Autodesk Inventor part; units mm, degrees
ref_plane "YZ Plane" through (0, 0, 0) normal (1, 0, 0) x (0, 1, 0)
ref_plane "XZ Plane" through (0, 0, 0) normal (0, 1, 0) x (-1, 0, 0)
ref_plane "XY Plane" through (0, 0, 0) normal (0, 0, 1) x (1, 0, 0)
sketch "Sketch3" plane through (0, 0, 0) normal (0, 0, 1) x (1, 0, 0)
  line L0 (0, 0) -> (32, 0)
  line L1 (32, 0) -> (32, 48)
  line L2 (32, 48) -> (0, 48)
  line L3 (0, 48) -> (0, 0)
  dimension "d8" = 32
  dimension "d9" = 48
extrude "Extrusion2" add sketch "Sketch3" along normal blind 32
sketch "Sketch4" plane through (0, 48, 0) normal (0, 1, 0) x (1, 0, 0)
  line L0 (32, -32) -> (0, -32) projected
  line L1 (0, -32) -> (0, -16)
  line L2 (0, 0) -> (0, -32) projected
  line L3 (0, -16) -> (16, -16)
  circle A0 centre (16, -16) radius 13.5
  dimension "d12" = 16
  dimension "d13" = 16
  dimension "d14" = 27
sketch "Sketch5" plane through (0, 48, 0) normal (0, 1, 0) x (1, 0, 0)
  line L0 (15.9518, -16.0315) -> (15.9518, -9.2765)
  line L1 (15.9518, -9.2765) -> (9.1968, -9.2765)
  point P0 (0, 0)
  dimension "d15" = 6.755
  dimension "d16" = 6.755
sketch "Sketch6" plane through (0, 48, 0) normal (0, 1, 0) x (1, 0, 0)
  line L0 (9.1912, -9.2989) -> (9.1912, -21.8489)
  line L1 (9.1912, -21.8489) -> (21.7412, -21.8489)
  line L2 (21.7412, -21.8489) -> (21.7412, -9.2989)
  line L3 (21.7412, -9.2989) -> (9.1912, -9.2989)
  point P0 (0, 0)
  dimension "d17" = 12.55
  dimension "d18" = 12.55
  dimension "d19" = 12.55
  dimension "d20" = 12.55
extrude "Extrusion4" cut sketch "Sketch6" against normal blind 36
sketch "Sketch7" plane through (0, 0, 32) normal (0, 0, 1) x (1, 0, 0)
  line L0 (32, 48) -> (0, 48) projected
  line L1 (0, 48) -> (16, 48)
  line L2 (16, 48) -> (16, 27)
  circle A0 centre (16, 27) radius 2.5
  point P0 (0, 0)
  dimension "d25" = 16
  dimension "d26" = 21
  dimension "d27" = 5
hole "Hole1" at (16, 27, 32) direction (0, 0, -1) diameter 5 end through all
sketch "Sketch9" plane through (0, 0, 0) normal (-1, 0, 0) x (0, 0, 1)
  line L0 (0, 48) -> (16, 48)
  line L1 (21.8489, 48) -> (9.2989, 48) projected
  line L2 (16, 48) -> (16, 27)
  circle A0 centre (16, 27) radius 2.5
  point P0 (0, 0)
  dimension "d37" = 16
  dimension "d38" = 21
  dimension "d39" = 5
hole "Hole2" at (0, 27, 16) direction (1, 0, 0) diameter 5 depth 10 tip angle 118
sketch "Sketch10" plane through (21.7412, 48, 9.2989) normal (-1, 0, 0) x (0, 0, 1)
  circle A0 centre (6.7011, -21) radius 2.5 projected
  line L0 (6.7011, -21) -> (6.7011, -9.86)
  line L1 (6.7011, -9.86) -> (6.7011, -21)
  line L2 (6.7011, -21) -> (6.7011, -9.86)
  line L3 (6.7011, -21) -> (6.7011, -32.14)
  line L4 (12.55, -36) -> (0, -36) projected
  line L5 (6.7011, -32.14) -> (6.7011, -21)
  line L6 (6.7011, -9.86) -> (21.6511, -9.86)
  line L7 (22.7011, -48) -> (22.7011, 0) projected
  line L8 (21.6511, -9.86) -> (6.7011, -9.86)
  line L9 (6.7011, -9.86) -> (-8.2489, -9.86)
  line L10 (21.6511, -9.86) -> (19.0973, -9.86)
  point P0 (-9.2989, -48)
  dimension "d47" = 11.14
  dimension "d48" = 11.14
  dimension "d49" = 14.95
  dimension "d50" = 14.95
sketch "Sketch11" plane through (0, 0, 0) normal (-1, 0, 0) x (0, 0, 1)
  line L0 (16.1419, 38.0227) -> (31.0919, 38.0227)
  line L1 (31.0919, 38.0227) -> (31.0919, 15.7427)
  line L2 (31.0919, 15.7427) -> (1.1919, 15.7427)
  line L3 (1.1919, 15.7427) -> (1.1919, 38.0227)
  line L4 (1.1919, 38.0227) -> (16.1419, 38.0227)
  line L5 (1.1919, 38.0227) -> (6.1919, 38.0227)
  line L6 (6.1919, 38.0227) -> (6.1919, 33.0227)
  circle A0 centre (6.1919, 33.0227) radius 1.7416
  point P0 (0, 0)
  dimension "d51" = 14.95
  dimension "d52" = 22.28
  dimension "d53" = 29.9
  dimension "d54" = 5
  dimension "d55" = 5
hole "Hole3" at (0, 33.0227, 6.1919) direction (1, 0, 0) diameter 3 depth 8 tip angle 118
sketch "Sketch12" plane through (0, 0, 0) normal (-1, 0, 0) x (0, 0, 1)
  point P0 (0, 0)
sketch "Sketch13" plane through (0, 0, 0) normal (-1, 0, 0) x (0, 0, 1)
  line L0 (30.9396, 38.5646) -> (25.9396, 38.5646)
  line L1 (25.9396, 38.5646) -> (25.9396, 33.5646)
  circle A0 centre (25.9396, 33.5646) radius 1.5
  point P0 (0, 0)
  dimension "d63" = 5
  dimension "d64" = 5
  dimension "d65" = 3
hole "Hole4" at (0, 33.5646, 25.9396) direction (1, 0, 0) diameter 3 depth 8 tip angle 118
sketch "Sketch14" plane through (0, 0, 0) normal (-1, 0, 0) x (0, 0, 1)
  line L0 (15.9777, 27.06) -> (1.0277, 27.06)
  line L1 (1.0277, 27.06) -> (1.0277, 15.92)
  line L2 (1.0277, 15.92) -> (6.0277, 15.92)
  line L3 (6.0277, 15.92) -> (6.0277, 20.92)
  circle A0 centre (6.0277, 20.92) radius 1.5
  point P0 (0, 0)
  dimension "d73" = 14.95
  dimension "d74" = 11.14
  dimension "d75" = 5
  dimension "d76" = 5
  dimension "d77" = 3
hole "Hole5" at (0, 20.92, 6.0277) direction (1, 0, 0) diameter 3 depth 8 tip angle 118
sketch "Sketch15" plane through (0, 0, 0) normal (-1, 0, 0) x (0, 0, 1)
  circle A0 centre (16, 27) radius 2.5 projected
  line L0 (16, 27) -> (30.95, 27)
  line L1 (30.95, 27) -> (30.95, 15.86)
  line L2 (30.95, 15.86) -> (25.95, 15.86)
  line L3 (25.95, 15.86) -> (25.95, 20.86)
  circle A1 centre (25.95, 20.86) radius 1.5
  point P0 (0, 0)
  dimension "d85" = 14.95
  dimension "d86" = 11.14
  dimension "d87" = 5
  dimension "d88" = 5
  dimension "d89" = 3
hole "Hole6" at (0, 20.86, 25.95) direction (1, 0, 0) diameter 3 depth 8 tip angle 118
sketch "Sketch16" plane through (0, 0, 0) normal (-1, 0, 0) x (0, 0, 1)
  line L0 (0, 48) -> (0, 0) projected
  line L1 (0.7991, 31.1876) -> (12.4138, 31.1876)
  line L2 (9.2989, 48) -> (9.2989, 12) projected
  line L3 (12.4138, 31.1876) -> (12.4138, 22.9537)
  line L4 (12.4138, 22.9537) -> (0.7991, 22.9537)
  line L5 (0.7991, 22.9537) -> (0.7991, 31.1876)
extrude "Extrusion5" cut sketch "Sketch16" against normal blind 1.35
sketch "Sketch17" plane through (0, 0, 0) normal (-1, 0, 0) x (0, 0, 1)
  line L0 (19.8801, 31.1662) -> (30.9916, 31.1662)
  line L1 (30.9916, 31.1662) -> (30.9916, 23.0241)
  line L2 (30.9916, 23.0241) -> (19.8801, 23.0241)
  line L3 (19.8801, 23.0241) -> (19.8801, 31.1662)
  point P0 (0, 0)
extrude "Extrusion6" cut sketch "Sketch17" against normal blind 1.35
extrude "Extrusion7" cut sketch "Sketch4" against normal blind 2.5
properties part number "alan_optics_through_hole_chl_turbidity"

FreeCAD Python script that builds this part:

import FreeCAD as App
import Part
import Sketcher
from FreeCAD import Vector


def add_polygon(sketch, points):
    """Adds a closed chain of lines whose ends are joined by coincident constraints."""
    first, n = sketch.GeometryCount, len(points)
    for a, b in zip(points, points[1:] + points[:1]):
        sketch.addGeometry(Part.LineSegment(App.Vector(*a, 0), App.Vector(*b, 0)), False)
    for i in range(n):
        sketch.addConstraint(Sketcher.Constraint("Coincident", first + i, 2, first + (i + 1) % n, 1))

doc = App.newDocument("Part")
body = doc.addObject("PartDesign::Body", "Body")

sketch1 = body.newObject("Sketcher::SketchObject", "Sketch")
sketch1.AttachmentSupport = (doc.getObject("XY_Plane"), [""])
sketch1.MapMode = "FlatFace"
add_polygon(sketch1, [(0, 48), (0, 0), (32, 0), (32, 48)])
sketch1.addConstraint(Sketcher.Constraint("Vertical", 0))
sketch1.addConstraint(Sketcher.Constraint("Horizontal", 1))
sketch1.addConstraint(Sketcher.Constraint("Vertical", 2))
sketch1.addConstraint(Sketcher.Constraint("Horizontal", 3))
sketch1.addConstraint(Sketcher.Constraint("Coincident", 0, 2, -1, 1))
sketch1.addConstraint(Sketcher.Constraint("DistanceX", 1, 1, 1, 2, 32.0))
sketch1.addConstraint(Sketcher.Constraint("DistanceY", 0, 2, 0, 1, 48.0))
pad1 = body.newObject("PartDesign::Pad", "Pad")
pad1.Profile = sketch1
pad1.Length = 32

sketch2 = body.newObject("Sketcher::SketchObject", "Sketch001")
sketch2.AttachmentSupport = (doc.getObject("XZ_Plane"), [""])
sketch2.MapMode = "FlatFace"
sketch2.AttachmentOffset = App.Placement(Vector(0, 0, -48), App.Rotation())
add_polygon(sketch2, [(22, 9), (9, 9), (9, 22), (22, 22)])
sketch2.addConstraint(Sketcher.Constraint("Horizontal", 0))
sketch2.addConstraint(Sketcher.Constraint("Vertical", 1))
sketch2.addConstraint(Sketcher.Constraint("Horizontal", 2))
sketch2.addConstraint(Sketcher.Constraint("Vertical", 3))
sketch2.addConstraint(Sketcher.Constraint("Equal", 2, 1))
sketch2.addConstraint(Sketcher.Constraint("DistanceX", 0, 2, 0, 1, 12.55))
sketch2.addConstraint(Sketcher.Constraint("DistanceY", -1, 1, 0, 2, 9.299))
sketch2.addConstraint(Sketcher.Constraint("DistanceX", -1, 1, 0, 2, 9.1912))
pocket1 = body.newObject("PartDesign::Pocket", "Pocket")
pocket1.Profile = sketch2
pocket1.Length = 36
pocket1.Reversed = True

sketch3 = body.newObject("Sketcher::SketchObject", "Sketch002")
sketch3.AttachmentSupport = (doc.getObject("XY_Plane"), [""])
sketch3.MapMode = "FlatFace"
sketch3.AttachmentOffset = App.Placement(Vector(0, 0, 32), App.Rotation())
sketch3.addGeometry(Part.Circle(Vector(16, 27, 0), Vector(0, 0, 1), 2.5), False)
sketch3.addConstraint(Sketcher.Constraint("Diameter", 0, 5.0))
sketch3.addConstraint(Sketcher.Constraint("DistanceX", -1, 1, 0, 3, 16.0))
sketch3.addConstraint(Sketcher.Constraint("DistanceY", -1, 1, 0, 3, 27.0))
doc.recompute()
hole = body.newObject("PartDesign::Hole", "Hole")
hole.Profile = sketch3
hole.ThreadType = "None"
hole.Diameter = 5
hole.DepthType = "ThroughAll"

sketch4 = body.newObject("Sketcher::SketchObject", "Sketch003")
sketch4.AttachmentSupport = (doc.getObject("YZ_Plane"), [""])
sketch4.MapMode = "FlatFace"
sketch4.addGeometry(Part.Circle(Vector(27, 16, 0), Vector(0, 0, 1), 2.5), False)
sketch4.addConstraint(Sketcher.Constraint("Diameter", 0, 5.0))
sketch4.addConstraint(Sketcher.Constraint("DistanceX", -1, 1, 0, 3, 27.0))
sketch4.addConstraint(Sketcher.Constraint("DistanceY", -1, 1, 0, 3, 16.0))
doc.recompute()
hole2 = body.newObject("PartDesign::Hole", "Hole001")
hole2.Profile = sketch4
hole2.ThreadType = "None"
hole2.Diameter = 5
hole2.DepthType = "Dimension"
hole2.Depth = 10
hole2.DrillPoint = "Angled"
hole2.DrillPointAngle = 118
hole2.Reversed = True

sketch5 = body.newObject("Sketcher::SketchObject", "Sketch004")
sketch5.AttachmentSupport = (doc.getObject("YZ_Plane"), [""])
sketch5.MapMode = "FlatFace"
sketch5.addGeometry(Part.Circle(Vector(33, 6.2, 0), Vector(0, 0, 1), 1.5), False)
sketch5.addConstraint(Sketcher.Constraint("Diameter", 0, 3.0))
sketch5.addConstraint(Sketcher.Constraint("DistanceY", -1, 1, 0, 3, 6.192))
sketch5.addConstraint(Sketcher.Constraint("DistanceX", -1, 1, 0, 3, 33.0227))
doc.recompute()
hole3 = body.newObject("PartDesign::Hole", "Hole002")
hole3.Profile = sketch5
hole3.ThreadType = "None"
hole3.Diameter = 3
hole3.DepthType = "Dimension"
hole3.Depth = 8
hole3.DrillPoint = "Angled"
hole3.DrillPointAngle = 118
hole3.Reversed = True

sketch6 = body.newObject("Sketcher::SketchObject", "Sketch005")
sketch6.AttachmentSupport = (doc.getObject("YZ_Plane"), [""])
sketch6.MapMode = "FlatFace"
sketch6.addGeometry(Part.Circle(Vector(33.6, 25.9, 0), Vector(0, 0, 1), 1.5), False)
sketch6.addConstraint(Sketcher.Constraint("Diameter", 0, 3.0))
sketch6.addConstraint(Sketcher.Constraint("DistanceX", -1, 1, 0, 3, 33.5646))
sketch6.addConstraint(Sketcher.Constraint("DistanceY", -1, 1, 0, 3, 25.9396))
doc.recompute()
hole4 = body.newObject("PartDesign::Hole", "Hole003")
hole4.Profile = sketch6
hole4.ThreadType = "None"
hole4.Diameter = 3
hole4.DepthType = "Dimension"
hole4.Depth = 8
hole4.DrillPoint = "Angled"
hole4.DrillPointAngle = 118
hole4.Reversed = True

sketch7 = body.newObject("Sketcher::SketchObject", "Sketch006")
sketch7.AttachmentSupport = (doc.getObject("YZ_Plane"), [""])
sketch7.MapMode = "FlatFace"
sketch7.addGeometry(Part.Circle(Vector(20.9, 6, 0), Vector(0, 0, 1), 1.5), False)
sketch7.addConstraint(Sketcher.Constraint("Diameter", 0, 3.0))
sketch7.addConstraint(Sketcher.Constraint("DistanceX", -1, 1, 0, 3, 20.92))
sketch7.addConstraint(Sketcher.Constraint("DistanceY", -1, 1, 0, 3, 6.0277))
doc.recompute()
hole5 = body.newObject("PartDesign::Hole", "Hole004")
hole5.Profile = sketch7
hole5.ThreadType = "None"
hole5.Diameter = 3
hole5.DepthType = "Dimension"
hole5.Depth = 8
hole5.DrillPoint = "Angled"
hole5.DrillPointAngle = 118
hole5.Reversed = True

sketch8 = body.newObject("Sketcher::SketchObject", "Sketch007")
sketch8.AttachmentSupport = (doc.getObject("YZ_Plane"), [""])
sketch8.MapMode = "FlatFace"
sketch8.addGeometry(Part.Circle(Vector(20.9, 25.9, 0), Vector(0, 0, 1), 1.5), False)
sketch8.addConstraint(Sketcher.Constraint("Diameter", 0, 3.0))
sketch8.addConstraint(Sketcher.Constraint("DistanceX", -1, 1, 0, 3, 20.86))
sketch8.addConstraint(Sketcher.Constraint("DistanceY", -1, 1, 0, 3, 25.95))
doc.recompute()
hole6 = body.newObject("PartDesign::Hole", "Hole005")
hole6.Profile = sketch8
hole6.ThreadType = "None"
hole6.Diameter = 3
hole6.DepthType = "Dimension"
hole6.Depth = 8
hole6.DrillPoint = "Angled"
hole6.DrillPointAngle = 118
hole6.Reversed = True

sketch9 = body.newObject("Sketcher::SketchObject", "Sketch008")
sketch9.AttachmentSupport = (doc.getObject("YZ_Plane"), [""])
sketch9.MapMode = "FlatFace"
add_polygon(sketch9, [(31, 1), (23, 1), (23, 12), (31, 12)])
sketch9.addConstraint(Sketcher.Constraint("Horizontal", 0))
sketch9.addConstraint(Sketcher.Constraint("Vertical", 1))
sketch9.addConstraint(Sketcher.Constraint("Horizontal", 2))
sketch9.addConstraint(Sketcher.Constraint("Vertical", 3))
sketch9.addConstraint(Sketcher.Constraint("DistanceX", 0, 2, 0, 1, 8.234))
sketch9.addConstraint(Sketcher.Constraint("DistanceY", 1, 1, 1, 2, 11.6147))
sketch9.addConstraint(Sketcher.Constraint("DistanceY", -1, 1, 0, 2, 0.799))
sketch9.addConstraint(Sketcher.Constraint("DistanceX", -1, 1, 0, 2, 22.9537))
pocket2 = body.newObject("PartDesign::Pocket", "Pocket001")
pocket2.Profile = sketch9
pocket2.Length = 1.35
pocket2.Reversed = True

sketch10 = body.newObject("Sketcher::SketchObject", "Sketch009")
sketch10.AttachmentSupport = (doc.getObject("YZ_Plane"), [""])
sketch10.MapMode = "FlatFace"
add_polygon(sketch10, [(31, 31), (31, 20), (23, 20), (23, 31)])
sketch10.addConstraint(Sketcher.Constraint("Vertical", 0))
sketch10.addConstraint(Sketcher.Constraint("Horizontal", 1))
sketch10.addConstraint(Sketcher.Constraint("Vertical", 2))
sketch10.addConstraint(Sketcher.Constraint("Horizontal", 3))
sketch10.addConstraint(Sketcher.Constraint("DistanceX", 1, 2, 1, 1, 8.142))
sketch10.addConstraint(Sketcher.Constraint("DistanceY", -1, 1, 0, 2, 19.88))
sketch10.addConstraint(Sketcher.Constraint("DistanceY", 0, 2, 0, 1, 11.1115))
sketch10.addConstraint(Sketcher.Constraint("DistanceX", -1, 1, 1, 2, 23.024))
pocket3 = body.newObject("PartDesign::Pocket", "Pocket002")
pocket3.Profile = sketch10
pocket3.Length = 1.35
pocket3.Reversed = True

sketch11 = body.newObject("Sketcher::SketchObject", "Sketch010")
sketch11.AttachmentSupport = (doc.getObject("XZ_Plane"), [""])
sketch11.MapMode = "FlatFace"
sketch11.AttachmentOffset = App.Placement(Vector(0, 0, -48), App.Rotation())
sketch11.addGeometry(Part.Circle(Vector(16, 16, 0), Vector(0, 0, 1), 14), False)
sketch11.addConstraint(Sketcher.Constraint("Diameter", 0, 27.0))
sketch11.addConstraint(Sketcher.Constraint("DistanceX", -1, 1, 0, 3, 16.0))
sketch11.addConstraint(Sketcher.Constraint("DistanceY", -1, 1, 0, 3, 16.0))
pocket4 = body.newObject("PartDesign::Pocket", "Pocket003")
pocket4.Profile = sketch11
pocket4.Length = 2.5
pocket4.Reversed = True

doc.recompute()
